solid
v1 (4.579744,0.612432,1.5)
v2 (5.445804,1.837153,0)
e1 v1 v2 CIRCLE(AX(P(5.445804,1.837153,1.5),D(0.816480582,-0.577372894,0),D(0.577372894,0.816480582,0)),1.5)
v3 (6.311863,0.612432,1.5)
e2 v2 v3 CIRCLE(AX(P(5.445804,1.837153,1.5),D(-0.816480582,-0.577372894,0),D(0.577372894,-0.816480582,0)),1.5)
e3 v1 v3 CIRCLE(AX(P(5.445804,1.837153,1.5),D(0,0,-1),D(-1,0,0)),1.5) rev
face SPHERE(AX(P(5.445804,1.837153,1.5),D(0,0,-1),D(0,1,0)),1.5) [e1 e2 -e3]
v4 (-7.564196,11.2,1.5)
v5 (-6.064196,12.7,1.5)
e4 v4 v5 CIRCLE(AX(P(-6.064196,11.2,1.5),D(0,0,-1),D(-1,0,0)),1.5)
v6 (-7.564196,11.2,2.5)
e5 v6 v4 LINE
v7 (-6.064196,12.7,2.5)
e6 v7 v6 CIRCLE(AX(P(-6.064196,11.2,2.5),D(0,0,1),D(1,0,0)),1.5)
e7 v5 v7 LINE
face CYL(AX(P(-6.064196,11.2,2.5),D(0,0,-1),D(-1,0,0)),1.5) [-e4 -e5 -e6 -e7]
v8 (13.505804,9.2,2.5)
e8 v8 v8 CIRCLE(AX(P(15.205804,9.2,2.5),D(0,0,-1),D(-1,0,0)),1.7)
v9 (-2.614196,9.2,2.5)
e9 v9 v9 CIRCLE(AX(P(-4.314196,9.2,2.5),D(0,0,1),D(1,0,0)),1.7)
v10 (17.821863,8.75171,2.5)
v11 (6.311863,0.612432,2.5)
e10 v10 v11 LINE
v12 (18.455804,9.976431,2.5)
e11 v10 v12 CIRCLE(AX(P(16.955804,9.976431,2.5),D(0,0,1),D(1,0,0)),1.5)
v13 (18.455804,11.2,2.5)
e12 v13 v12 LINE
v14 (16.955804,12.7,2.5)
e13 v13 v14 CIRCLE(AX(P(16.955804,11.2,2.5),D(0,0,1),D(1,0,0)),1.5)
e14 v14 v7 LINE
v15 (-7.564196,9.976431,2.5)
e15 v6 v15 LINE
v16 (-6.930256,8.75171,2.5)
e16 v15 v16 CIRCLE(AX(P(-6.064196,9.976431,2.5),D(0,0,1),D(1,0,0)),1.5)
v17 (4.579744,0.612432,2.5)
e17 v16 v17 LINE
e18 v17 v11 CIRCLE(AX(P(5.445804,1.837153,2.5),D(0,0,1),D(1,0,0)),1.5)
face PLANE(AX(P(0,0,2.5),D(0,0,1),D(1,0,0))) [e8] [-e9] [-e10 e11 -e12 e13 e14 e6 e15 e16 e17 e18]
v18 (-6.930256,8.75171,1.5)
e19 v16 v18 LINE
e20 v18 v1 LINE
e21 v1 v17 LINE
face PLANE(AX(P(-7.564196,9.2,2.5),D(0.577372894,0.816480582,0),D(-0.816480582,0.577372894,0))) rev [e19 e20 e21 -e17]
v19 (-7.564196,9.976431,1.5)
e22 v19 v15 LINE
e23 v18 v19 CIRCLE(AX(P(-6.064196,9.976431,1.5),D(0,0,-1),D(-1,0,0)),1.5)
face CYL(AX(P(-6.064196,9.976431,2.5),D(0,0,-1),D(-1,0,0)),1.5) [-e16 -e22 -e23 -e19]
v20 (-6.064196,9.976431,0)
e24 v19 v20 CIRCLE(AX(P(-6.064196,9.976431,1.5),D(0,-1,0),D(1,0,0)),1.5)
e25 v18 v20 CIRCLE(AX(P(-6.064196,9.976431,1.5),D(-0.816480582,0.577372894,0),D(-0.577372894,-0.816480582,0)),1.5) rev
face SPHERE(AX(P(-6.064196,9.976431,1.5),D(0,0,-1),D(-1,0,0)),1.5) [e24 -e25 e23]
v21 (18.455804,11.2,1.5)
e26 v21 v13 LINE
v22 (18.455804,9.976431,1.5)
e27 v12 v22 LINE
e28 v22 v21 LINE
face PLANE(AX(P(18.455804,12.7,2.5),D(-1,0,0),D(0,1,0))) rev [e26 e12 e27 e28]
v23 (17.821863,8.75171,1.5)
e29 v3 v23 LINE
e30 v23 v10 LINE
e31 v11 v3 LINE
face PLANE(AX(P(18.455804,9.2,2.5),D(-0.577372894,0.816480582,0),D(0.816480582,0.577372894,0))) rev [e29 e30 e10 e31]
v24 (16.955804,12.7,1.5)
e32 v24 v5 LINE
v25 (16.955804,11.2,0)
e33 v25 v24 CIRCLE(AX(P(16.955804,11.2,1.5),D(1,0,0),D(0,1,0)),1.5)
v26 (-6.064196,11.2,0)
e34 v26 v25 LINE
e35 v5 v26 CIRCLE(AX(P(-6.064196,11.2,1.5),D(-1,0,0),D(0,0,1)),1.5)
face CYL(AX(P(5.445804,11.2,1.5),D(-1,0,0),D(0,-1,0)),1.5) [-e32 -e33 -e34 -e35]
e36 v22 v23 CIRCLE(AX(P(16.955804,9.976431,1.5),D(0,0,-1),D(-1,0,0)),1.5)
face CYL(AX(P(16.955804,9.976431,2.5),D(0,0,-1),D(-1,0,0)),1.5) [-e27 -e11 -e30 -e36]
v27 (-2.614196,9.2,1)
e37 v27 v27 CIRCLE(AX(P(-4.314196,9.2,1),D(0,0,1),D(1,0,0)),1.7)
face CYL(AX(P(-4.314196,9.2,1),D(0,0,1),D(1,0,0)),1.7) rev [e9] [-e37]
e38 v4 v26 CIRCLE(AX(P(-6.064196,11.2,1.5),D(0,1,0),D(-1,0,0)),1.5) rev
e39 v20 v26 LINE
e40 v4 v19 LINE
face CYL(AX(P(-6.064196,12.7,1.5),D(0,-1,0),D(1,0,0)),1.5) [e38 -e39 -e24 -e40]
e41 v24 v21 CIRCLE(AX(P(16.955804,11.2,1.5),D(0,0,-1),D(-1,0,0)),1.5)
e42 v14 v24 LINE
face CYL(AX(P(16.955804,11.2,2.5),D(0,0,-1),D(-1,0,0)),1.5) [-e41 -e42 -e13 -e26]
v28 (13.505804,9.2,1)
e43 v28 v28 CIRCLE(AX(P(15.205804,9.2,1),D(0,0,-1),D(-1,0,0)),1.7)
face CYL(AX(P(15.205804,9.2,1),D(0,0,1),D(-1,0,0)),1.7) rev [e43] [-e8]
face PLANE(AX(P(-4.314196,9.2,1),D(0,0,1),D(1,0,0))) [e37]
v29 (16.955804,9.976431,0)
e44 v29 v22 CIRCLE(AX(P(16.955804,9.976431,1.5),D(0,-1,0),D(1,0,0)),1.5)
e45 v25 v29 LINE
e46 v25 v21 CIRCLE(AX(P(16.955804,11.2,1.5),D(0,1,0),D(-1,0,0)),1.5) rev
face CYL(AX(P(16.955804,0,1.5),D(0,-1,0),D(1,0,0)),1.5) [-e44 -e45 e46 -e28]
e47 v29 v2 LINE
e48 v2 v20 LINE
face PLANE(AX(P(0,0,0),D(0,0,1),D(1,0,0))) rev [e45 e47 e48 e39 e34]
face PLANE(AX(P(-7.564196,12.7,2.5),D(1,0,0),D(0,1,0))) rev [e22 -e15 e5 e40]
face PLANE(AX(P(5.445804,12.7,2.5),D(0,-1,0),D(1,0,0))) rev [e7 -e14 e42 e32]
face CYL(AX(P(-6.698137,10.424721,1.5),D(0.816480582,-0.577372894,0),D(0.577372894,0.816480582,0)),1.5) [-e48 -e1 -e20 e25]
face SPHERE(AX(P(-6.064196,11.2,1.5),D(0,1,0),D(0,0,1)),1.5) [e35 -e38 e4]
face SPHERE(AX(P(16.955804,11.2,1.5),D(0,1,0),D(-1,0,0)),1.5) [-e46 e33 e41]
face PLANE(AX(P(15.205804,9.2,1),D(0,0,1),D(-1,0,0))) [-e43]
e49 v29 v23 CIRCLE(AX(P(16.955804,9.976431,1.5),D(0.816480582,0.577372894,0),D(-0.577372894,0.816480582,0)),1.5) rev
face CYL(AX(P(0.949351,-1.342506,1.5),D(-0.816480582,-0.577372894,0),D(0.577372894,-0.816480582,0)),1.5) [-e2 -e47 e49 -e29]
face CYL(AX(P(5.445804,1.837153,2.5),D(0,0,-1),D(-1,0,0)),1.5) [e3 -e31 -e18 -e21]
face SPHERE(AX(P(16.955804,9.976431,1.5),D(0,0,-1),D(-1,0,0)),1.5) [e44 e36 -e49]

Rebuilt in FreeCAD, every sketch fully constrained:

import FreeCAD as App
import Part
import Sketcher
Q = App.Units.Quantity


def edges_at(feature, points):
    """Names of the edges that pass closest to the given points."""
    edges = feature.Shape.Edges
    near = lambda p: min(range(len(edges)), key=lambda i: edges[i].distToShape(Part.Vertex(*p))[0])
    return sorted({f"Edge{near(p) + 1}" for p in points})

doc = App.newDocument("Part")
params = doc.addObject("Spreadsheet::Sheet", "Params")
for row, (alias, value) in enumerate([
    ("sketch1_height", "3.5 mm"),
    ("sketch1_height2", "12.7 mm"),
    ("sketch1_width", "13.01 mm"),
    ("pad1_length", "2.5 mm"),
    ("sketch2_diameter", "3.4 mm"),
    ("pocket1_length", "1.5 mm"),
    ("fillet_radius", "1.5 mm"),
], start=1):
    params.set(f"A{row}", alias)
    params.set(f"B{row}", "=" + value)
    params.setAlias(f"B{row}", alias)

body = doc.addObject("PartDesign::Body", "Body")

sketch1 = doc.addObject("Sketcher::SketchObject", "Sketch")
body.addObject(sketch1)
sketch1.AttachmentSupport = (doc.XY_Plane, [""])
sketch1.MapMode = "FlatFace"
sketch1.addGeometry(Part.LineSegment(App.Vector(-7.6, 12.7, 0), App.Vector(-7.6, 9.2, 0)), False)
sketch1.addGeometry(Part.LineSegment(App.Vector(-7.6, 9.2, 0), App.Vector(5.4, 0, 0)), False)
sketch1.addGeometry(Part.LineSegment(App.Vector(5.4, 0, 0), App.Vector(5.4, 12.7, 0)), False)
sketch1.addGeometry(Part.LineSegment(App.Vector(5.4, 12.7, 0), App.Vector(-7.6, 12.7, 0)), False)
sketch1.addConstraint(Sketcher.Constraint("Coincident", 0, 2, 1, 1))
sketch1.addConstraint(Sketcher.Constraint("Coincident", 1, 2, 2, 1))
sketch1.addConstraint(Sketcher.Constraint("Coincident", 2, 2, 3, 1))
sketch1.addConstraint(Sketcher.Constraint("Coincident", 3, 2, 0, 1))
sketch1.addConstraint(Sketcher.Constraint("Vertical", 0))
sketch1.addConstraint(Sketcher.Constraint("Vertical", 2))
sketch1.addConstraint(Sketcher.Constraint("Horizontal", 3))
sketch1.addConstraint(Sketcher.Constraint("PointOnObject", 1, 2, -1))
sketch1.addConstraint(Sketcher.Constraint("DistanceY", 0, 2, 0, 1, Q("3.5 mm")))
sketch1.addConstraint(Sketcher.Constraint("DistanceY", 2, 1, 2, 2, Q("12.7 mm")))
sketch1.addConstraint(Sketcher.Constraint("DistanceX", 3, 2, 3, 1, Q("13.01 mm")))
sketch1.addConstraint(Sketcher.Constraint("DistanceX", 0, 2, -1, 1, Q("7.564196 mm")))
sketch1.setExpression("Constraints[8]", "Params.sketch1_height")
sketch1.setExpression("Constraints[9]", "Params.sketch1_height2")
sketch1.setExpression("Constraints[10]", "Params.sketch1_width")
pad1 = doc.addObject("PartDesign::Pad", "Pad")
body.addObject(pad1)
pad1.Profile = sketch1
pad1.setExpression("Length", "Params.pad1_length")

sketch2 = doc.addObject("Sketcher::SketchObject", "Sketch001")
body.addObject(sketch2)
sketch2.AttachmentSupport = (doc.XY_Plane, [""])
sketch2.MapMode = "FlatFace"
sketch2.AttachmentOffset = App.Placement(App.Vector(0, 0, 2.5), App.Rotation())
sketch2.addGeometry(Part.Circle(App.Vector(-4.3, 9.2, 0), App.Vector(0, 0, 1), 1.7), False)
sketch2.addConstraint(Sketcher.Constraint("Diameter", 0, Q("3.4 mm")))
sketch2.addConstraint(Sketcher.Constraint("DistanceY", -1, 1, 0, 3, Q("9.2 mm")))
sketch2.addConstraint(Sketcher.Constraint("DistanceX", 0, 3, -1, 1, Q("4.314196 mm")))
sketch2.setExpression("Constraints[0]", "Params.sketch2_diameter")
pocket1 = doc.addObject("PartDesign::Pocket", "Pocket")
body.addObject(pocket1)
pocket1.Profile = sketch2
pocket1.setExpression("Length", "Params.pocket1_length")
body2 = doc.addObject("PartDesign::Body", "Body001")
doc.recompute()

body2.BaseFeature = body
doc.recompute()

mirroring = doc.addObject("Part::Mirroring", "Mirroring")
mirroring.Source = body
mirroring.Base = App.Vector(5.445804, 0, 2.5)
mirroring.Normal = App.Vector(-1, 0, 0)
body3 = doc.addObject("PartDesign::Body", "Body002")
body3.BaseFeature = mirroring
boolean = doc.addObject("PartDesign::Boolean", "Boolean")
body2.addObject(boolean)
boolean.Type = "Fuse"
boolean.addObjects([body3])
doc.recompute()

fillet = doc.addObject("PartDesign::Fillet", "Fillet")
body2.addObject(fillet)
fillet.Base = (boolean, edges_at(boolean, [
    (18.456, 12.7, 1.25),
    (18.456, 9.2, 1.25),
    (5.446, 0, 1.25),
    (18.456, 10.95, 0),
    (11.951, 4.6, 0),
    (-1.059, 4.6, 0),
    (-7.564, 10.95, 0),
    (5.446, 12.7, 0),
    (-7.564, 9.2, 1.25),
    (-7.564, 12.7, 1.25),
]))
fillet.setExpression("Radius", "Params.fillet_radius")
mirroring.Visibility = False

doc.recompute()
